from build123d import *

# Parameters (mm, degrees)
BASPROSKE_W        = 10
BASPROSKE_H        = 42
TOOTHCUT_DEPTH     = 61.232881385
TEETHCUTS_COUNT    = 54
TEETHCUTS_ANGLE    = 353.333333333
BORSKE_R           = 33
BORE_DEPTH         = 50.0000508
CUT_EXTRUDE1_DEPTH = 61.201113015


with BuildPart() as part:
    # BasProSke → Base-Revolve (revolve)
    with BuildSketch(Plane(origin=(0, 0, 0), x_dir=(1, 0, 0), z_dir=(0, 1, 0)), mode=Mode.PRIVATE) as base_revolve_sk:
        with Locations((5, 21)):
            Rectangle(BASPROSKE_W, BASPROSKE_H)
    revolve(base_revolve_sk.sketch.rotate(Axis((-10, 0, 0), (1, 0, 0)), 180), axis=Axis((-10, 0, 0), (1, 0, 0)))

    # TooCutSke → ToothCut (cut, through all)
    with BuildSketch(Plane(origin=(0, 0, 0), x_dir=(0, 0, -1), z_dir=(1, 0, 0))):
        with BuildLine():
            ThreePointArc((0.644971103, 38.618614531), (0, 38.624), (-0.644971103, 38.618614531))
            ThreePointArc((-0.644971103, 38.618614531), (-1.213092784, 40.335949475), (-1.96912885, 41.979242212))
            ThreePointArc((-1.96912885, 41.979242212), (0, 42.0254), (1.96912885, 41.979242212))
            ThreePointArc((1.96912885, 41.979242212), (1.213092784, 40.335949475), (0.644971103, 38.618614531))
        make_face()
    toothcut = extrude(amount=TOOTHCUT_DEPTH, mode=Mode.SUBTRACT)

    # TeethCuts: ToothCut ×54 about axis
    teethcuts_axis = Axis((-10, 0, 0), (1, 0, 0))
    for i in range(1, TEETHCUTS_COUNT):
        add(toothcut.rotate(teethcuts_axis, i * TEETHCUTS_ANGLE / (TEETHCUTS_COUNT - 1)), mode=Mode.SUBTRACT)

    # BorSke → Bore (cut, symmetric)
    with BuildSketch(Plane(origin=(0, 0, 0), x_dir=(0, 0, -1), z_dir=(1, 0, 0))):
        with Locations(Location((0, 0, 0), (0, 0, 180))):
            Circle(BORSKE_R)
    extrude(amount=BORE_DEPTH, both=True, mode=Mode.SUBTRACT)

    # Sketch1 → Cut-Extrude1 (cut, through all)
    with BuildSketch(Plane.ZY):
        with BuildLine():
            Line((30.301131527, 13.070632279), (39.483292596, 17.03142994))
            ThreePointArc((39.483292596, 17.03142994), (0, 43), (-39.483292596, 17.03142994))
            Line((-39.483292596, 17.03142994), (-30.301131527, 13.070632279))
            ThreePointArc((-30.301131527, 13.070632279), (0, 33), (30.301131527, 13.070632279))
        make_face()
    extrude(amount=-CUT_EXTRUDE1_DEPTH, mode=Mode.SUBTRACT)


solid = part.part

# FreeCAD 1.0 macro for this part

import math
import FreeCAD as App
import Part
import Sketcher
from FreeCAD import Vector

doc = App.newDocument("Part")
params = doc.addObject("Spreadsheet::Sheet", "Params")
for row, (alias, value) in enumerate([
    ("sketch1_width", "10 mm"),
    ("sketch1_height", "42 mm"),
    ("revolution_angle", "360 deg"),
    ("sketch2_radius", "16.2 mm"),
    ("sketch3_diameter", "66 mm"),
    ("pocket2_length", "100.000102 mm"),
    ("sketch4_radius", "43 mm"),
    ("sketch4_radius2", "33 mm"),
], start=1):
    params.set(f"A{row}", alias)
    params.set(f"B{row}", "=" + value)
    params.setAlias(f"B{row}", alias)

body = doc.addObject("PartDesign::Body", "Body")

# Sketch on XZ plane
sketch1 = body.newObject("Sketcher::SketchObject", "Sketch")
sketch1.AttachmentSupport = (doc.getObject("XZ_Plane"), [""])
sketch1.MapMode = "FlatFace"
sketch1.addGeometry([
    Part.LineSegment(Vector(0, -42, 0), Vector(0, 0, 0)),
    Part.LineSegment(Vector(0, 0, 0), Vector(10, 0, 0)),
    Part.LineSegment(Vector(10, 0, 0), Vector(10, -42, 0)),
    Part.LineSegment(Vector(10, -42, 0), Vector(0, -42, 0)),
], False)
sketch1.addConstraint([
    Sketcher.Constraint("Coincident", 0, 2, 1, 1),
    Sketcher.Constraint("Coincident", 1, 2, 2, 1),
    Sketcher.Constraint("Coincident", 2, 2, 3, 1),
    Sketcher.Constraint("Coincident", 3, 2, 0, 1),
    Sketcher.Constraint("Vertical", 0),
    Sketcher.Constraint("Horizontal", 1),
    Sketcher.Constraint("Vertical", 2),
    Sketcher.Constraint("Horizontal", 3),
    Sketcher.Constraint("Coincident", 0, 2, -1, 1),
    Sketcher.Constraint("DistanceX", 1, 1, 1, 2, 10.0),
    Sketcher.Constraint("DistanceY", 0, 1, 0, 2, 42.0),
])
sketch1.setExpression("Constraints[9]", "Params.sketch1_width")
sketch1.setExpression("Constraints[10]", "Params.sketch1_height")
revolution = body.newObject("PartDesign::Revolution", "Revolution")
revolution.Profile = sketch1
revolution.ReferenceAxis = (sketch1, ["H_Axis"])
revolution.setExpression("Angle", "Params.revolution_angle")

# Sketch on YZ plane
sketch2 = body.newObject("Sketcher::SketchObject", "Sketch001")
sketch2.AttachmentSupport = (doc.getObject("YZ_Plane"), [""])
sketch2.MapMode = "FlatFace"
sketch2.addGeometry([
    Part.ArcOfCircle(Part.Circle(Vector(-0.000002, 0, 0), Vector(0, 0, 1), 38.624002), math.radians(-0.95681), math.radians(0.95681)),
    Part.ArcOfCircle(Part.Circle(Vector(34.397188, -16.285289, 0), Vector(0, 0, 1), 16.2), math.radians(62.093632), math.radians(74.895408)),
    Part.ArcOfCircle(Part.Circle(Vector(0, 0, 0), Vector(0, 0, 1), 42.0254), math.radians(-2.685616), math.radians(2.685616)),
    Part.ArcOfCircle(Part.Circle(Vector(34.397188, 16.285289, 0), Vector(0, 0, 1), 16.2), math.radians(-74.895408), math.radians(-62.093632)),
], False)
sketch2.addConstraint([
    Sketcher.Constraint("Coincident", 0, 1, 1, 2),
    Sketcher.Constraint("Coincident", 1, 1, 2, 1),
    Sketcher.Constraint("Coincident", 2, 2, 3, 2),
    Sketcher.Constraint("Coincident", 3, 1, 0, 2),
    Sketcher.Constraint("Coincident", 0, 3, -1, 1),
    Sketcher.Constraint("Coincident", 2, 3, -1, 1),
    Sketcher.Constraint("Equal", 1, 3),
    Sketcher.Constraint("Symmetric", 1, 3, 3, 3, -1),
    Sketcher.Constraint("Radius", 1, 16.2),
    Sketcher.Constraint("Radius", 0, 38.624002),
    Sketcher.Constraint("Radius", 2, 42.0254),
    Sketcher.Constraint("DistanceY", 0, 1, 2, 2, 2.6141),
    Sketcher.Constraint("DistanceX", -1, 1, 1, 3, 34.397188),
])
sketch2.setExpression("Constraints[8]", "Params.sketch2_radius")
pocket1 = body.newObject("PartDesign::Pocket", "Pocket")
pocket1.Profile = sketch2
pocket1.Type = "ThroughAll"
pocket1.Reversed = True
doc.recompute()

polarpattern = body.newObject("PartDesign::PolarPattern", "PolarPattern")
polarpattern.Originals = [pocket1]
polarpattern.Axis = (doc.getObject("X_Axis"), [""])
polarpattern.Angle = 360
polarpattern.Occurrences = 54
body.Tip = polarpattern

# Sketch on YZ plane
sketch3 = body.newObject("Sketcher::SketchObject", "Sketch002")
sketch3.AttachmentSupport = (doc.getObject("YZ_Plane"), [""])
sketch3.MapMode = "FlatFace"
sketch3.addGeometry(Part.Circle(Vector(0, 0, 0), Vector(0, 0, 1), 33), False)
sketch3.addConstraint([
    Sketcher.Constraint("Coincident", 0, 3, -1, 1),
    Sketcher.Constraint("Diameter", 0, 66.0),
])
sketch3.setExpression("Constraints[1]", "Params.sketch3_diameter")
pocket2 = body.newObject("PartDesign::Pocket", "Pocket001")
pocket2.Profile = sketch3
pocket2.setExpression("Length", "Params.pocket2_length")
pocket2.Midplane = True

# Sketch on YZ plane
sketch4 = body.newObject("Sketcher::SketchObject", "Sketch003")
sketch4.AttachmentSupport = (doc.getObject("YZ_Plane"), [""])
sketch4.MapMode = "FlatFace"
sketch4.addGeometry([
    Part.LineSegment(Vector(13.070632, 30.301132, 0), Vector(17.03143, 39.483293, 0)),
    Part.ArcOfCircle(Part.Circle(Vector(0, 0, 0), Vector(0, 0, 1), 43), math.radians(-66.666667), math.radians(66.666667)),
    Part.LineSegment(Vector(17.03143, -39.483293, 0), Vector(13.070632, -30.301132, 0)),
    Part.ArcOfCircle(Part.Circle(Vector(0, 0, 0), Vector(0, 0, 1), 33), math.radians(-66.666667), math.radians(66.666667)),
], False)
sketch4.addConstraint([
    Sketcher.Constraint("Coincident", 0, 2, 1, 2),
    Sketcher.Constraint("Coincident", 1, 1, 2, 1),
    Sketcher.Constraint("Coincident", 2, 2, 3, 1),
    Sketcher.Constraint("Coincident", 3, 2, 0, 1),
    Sketcher.Constraint("Coincident", 1, 3, -1, 1),
    Sketcher.Constraint("Coincident", 3, 3, -1, 1),
    Sketcher.Constraint("Vertical", 0, 2, 1, 1),
    Sketcher.Constraint("Vertical", 2, 2, 3, 2),
    Sketcher.Constraint("Radius", 1, 43.0),
    Sketcher.Constraint("Radius", 3, 33.0),
    Sketcher.Constraint("DistanceX", -1, 1, 0, 2, 17.03143),
    Sketcher.Constraint("DistanceY", 2, 2, -1, 1, 30.301132),
])
sketch4.setExpression("Constraints[8]", "Params.sketch4_radius")
sketch4.setExpression("Constraints[9]", "Params.sketch4_radius2")
pocket3 = body.newObject("PartDesign::Pocket", "Pocket002")
pocket3.Profile = sketch4
pocket3.Type = "ThroughAll"
pocket3.Reversed = True

doc.recompute()
